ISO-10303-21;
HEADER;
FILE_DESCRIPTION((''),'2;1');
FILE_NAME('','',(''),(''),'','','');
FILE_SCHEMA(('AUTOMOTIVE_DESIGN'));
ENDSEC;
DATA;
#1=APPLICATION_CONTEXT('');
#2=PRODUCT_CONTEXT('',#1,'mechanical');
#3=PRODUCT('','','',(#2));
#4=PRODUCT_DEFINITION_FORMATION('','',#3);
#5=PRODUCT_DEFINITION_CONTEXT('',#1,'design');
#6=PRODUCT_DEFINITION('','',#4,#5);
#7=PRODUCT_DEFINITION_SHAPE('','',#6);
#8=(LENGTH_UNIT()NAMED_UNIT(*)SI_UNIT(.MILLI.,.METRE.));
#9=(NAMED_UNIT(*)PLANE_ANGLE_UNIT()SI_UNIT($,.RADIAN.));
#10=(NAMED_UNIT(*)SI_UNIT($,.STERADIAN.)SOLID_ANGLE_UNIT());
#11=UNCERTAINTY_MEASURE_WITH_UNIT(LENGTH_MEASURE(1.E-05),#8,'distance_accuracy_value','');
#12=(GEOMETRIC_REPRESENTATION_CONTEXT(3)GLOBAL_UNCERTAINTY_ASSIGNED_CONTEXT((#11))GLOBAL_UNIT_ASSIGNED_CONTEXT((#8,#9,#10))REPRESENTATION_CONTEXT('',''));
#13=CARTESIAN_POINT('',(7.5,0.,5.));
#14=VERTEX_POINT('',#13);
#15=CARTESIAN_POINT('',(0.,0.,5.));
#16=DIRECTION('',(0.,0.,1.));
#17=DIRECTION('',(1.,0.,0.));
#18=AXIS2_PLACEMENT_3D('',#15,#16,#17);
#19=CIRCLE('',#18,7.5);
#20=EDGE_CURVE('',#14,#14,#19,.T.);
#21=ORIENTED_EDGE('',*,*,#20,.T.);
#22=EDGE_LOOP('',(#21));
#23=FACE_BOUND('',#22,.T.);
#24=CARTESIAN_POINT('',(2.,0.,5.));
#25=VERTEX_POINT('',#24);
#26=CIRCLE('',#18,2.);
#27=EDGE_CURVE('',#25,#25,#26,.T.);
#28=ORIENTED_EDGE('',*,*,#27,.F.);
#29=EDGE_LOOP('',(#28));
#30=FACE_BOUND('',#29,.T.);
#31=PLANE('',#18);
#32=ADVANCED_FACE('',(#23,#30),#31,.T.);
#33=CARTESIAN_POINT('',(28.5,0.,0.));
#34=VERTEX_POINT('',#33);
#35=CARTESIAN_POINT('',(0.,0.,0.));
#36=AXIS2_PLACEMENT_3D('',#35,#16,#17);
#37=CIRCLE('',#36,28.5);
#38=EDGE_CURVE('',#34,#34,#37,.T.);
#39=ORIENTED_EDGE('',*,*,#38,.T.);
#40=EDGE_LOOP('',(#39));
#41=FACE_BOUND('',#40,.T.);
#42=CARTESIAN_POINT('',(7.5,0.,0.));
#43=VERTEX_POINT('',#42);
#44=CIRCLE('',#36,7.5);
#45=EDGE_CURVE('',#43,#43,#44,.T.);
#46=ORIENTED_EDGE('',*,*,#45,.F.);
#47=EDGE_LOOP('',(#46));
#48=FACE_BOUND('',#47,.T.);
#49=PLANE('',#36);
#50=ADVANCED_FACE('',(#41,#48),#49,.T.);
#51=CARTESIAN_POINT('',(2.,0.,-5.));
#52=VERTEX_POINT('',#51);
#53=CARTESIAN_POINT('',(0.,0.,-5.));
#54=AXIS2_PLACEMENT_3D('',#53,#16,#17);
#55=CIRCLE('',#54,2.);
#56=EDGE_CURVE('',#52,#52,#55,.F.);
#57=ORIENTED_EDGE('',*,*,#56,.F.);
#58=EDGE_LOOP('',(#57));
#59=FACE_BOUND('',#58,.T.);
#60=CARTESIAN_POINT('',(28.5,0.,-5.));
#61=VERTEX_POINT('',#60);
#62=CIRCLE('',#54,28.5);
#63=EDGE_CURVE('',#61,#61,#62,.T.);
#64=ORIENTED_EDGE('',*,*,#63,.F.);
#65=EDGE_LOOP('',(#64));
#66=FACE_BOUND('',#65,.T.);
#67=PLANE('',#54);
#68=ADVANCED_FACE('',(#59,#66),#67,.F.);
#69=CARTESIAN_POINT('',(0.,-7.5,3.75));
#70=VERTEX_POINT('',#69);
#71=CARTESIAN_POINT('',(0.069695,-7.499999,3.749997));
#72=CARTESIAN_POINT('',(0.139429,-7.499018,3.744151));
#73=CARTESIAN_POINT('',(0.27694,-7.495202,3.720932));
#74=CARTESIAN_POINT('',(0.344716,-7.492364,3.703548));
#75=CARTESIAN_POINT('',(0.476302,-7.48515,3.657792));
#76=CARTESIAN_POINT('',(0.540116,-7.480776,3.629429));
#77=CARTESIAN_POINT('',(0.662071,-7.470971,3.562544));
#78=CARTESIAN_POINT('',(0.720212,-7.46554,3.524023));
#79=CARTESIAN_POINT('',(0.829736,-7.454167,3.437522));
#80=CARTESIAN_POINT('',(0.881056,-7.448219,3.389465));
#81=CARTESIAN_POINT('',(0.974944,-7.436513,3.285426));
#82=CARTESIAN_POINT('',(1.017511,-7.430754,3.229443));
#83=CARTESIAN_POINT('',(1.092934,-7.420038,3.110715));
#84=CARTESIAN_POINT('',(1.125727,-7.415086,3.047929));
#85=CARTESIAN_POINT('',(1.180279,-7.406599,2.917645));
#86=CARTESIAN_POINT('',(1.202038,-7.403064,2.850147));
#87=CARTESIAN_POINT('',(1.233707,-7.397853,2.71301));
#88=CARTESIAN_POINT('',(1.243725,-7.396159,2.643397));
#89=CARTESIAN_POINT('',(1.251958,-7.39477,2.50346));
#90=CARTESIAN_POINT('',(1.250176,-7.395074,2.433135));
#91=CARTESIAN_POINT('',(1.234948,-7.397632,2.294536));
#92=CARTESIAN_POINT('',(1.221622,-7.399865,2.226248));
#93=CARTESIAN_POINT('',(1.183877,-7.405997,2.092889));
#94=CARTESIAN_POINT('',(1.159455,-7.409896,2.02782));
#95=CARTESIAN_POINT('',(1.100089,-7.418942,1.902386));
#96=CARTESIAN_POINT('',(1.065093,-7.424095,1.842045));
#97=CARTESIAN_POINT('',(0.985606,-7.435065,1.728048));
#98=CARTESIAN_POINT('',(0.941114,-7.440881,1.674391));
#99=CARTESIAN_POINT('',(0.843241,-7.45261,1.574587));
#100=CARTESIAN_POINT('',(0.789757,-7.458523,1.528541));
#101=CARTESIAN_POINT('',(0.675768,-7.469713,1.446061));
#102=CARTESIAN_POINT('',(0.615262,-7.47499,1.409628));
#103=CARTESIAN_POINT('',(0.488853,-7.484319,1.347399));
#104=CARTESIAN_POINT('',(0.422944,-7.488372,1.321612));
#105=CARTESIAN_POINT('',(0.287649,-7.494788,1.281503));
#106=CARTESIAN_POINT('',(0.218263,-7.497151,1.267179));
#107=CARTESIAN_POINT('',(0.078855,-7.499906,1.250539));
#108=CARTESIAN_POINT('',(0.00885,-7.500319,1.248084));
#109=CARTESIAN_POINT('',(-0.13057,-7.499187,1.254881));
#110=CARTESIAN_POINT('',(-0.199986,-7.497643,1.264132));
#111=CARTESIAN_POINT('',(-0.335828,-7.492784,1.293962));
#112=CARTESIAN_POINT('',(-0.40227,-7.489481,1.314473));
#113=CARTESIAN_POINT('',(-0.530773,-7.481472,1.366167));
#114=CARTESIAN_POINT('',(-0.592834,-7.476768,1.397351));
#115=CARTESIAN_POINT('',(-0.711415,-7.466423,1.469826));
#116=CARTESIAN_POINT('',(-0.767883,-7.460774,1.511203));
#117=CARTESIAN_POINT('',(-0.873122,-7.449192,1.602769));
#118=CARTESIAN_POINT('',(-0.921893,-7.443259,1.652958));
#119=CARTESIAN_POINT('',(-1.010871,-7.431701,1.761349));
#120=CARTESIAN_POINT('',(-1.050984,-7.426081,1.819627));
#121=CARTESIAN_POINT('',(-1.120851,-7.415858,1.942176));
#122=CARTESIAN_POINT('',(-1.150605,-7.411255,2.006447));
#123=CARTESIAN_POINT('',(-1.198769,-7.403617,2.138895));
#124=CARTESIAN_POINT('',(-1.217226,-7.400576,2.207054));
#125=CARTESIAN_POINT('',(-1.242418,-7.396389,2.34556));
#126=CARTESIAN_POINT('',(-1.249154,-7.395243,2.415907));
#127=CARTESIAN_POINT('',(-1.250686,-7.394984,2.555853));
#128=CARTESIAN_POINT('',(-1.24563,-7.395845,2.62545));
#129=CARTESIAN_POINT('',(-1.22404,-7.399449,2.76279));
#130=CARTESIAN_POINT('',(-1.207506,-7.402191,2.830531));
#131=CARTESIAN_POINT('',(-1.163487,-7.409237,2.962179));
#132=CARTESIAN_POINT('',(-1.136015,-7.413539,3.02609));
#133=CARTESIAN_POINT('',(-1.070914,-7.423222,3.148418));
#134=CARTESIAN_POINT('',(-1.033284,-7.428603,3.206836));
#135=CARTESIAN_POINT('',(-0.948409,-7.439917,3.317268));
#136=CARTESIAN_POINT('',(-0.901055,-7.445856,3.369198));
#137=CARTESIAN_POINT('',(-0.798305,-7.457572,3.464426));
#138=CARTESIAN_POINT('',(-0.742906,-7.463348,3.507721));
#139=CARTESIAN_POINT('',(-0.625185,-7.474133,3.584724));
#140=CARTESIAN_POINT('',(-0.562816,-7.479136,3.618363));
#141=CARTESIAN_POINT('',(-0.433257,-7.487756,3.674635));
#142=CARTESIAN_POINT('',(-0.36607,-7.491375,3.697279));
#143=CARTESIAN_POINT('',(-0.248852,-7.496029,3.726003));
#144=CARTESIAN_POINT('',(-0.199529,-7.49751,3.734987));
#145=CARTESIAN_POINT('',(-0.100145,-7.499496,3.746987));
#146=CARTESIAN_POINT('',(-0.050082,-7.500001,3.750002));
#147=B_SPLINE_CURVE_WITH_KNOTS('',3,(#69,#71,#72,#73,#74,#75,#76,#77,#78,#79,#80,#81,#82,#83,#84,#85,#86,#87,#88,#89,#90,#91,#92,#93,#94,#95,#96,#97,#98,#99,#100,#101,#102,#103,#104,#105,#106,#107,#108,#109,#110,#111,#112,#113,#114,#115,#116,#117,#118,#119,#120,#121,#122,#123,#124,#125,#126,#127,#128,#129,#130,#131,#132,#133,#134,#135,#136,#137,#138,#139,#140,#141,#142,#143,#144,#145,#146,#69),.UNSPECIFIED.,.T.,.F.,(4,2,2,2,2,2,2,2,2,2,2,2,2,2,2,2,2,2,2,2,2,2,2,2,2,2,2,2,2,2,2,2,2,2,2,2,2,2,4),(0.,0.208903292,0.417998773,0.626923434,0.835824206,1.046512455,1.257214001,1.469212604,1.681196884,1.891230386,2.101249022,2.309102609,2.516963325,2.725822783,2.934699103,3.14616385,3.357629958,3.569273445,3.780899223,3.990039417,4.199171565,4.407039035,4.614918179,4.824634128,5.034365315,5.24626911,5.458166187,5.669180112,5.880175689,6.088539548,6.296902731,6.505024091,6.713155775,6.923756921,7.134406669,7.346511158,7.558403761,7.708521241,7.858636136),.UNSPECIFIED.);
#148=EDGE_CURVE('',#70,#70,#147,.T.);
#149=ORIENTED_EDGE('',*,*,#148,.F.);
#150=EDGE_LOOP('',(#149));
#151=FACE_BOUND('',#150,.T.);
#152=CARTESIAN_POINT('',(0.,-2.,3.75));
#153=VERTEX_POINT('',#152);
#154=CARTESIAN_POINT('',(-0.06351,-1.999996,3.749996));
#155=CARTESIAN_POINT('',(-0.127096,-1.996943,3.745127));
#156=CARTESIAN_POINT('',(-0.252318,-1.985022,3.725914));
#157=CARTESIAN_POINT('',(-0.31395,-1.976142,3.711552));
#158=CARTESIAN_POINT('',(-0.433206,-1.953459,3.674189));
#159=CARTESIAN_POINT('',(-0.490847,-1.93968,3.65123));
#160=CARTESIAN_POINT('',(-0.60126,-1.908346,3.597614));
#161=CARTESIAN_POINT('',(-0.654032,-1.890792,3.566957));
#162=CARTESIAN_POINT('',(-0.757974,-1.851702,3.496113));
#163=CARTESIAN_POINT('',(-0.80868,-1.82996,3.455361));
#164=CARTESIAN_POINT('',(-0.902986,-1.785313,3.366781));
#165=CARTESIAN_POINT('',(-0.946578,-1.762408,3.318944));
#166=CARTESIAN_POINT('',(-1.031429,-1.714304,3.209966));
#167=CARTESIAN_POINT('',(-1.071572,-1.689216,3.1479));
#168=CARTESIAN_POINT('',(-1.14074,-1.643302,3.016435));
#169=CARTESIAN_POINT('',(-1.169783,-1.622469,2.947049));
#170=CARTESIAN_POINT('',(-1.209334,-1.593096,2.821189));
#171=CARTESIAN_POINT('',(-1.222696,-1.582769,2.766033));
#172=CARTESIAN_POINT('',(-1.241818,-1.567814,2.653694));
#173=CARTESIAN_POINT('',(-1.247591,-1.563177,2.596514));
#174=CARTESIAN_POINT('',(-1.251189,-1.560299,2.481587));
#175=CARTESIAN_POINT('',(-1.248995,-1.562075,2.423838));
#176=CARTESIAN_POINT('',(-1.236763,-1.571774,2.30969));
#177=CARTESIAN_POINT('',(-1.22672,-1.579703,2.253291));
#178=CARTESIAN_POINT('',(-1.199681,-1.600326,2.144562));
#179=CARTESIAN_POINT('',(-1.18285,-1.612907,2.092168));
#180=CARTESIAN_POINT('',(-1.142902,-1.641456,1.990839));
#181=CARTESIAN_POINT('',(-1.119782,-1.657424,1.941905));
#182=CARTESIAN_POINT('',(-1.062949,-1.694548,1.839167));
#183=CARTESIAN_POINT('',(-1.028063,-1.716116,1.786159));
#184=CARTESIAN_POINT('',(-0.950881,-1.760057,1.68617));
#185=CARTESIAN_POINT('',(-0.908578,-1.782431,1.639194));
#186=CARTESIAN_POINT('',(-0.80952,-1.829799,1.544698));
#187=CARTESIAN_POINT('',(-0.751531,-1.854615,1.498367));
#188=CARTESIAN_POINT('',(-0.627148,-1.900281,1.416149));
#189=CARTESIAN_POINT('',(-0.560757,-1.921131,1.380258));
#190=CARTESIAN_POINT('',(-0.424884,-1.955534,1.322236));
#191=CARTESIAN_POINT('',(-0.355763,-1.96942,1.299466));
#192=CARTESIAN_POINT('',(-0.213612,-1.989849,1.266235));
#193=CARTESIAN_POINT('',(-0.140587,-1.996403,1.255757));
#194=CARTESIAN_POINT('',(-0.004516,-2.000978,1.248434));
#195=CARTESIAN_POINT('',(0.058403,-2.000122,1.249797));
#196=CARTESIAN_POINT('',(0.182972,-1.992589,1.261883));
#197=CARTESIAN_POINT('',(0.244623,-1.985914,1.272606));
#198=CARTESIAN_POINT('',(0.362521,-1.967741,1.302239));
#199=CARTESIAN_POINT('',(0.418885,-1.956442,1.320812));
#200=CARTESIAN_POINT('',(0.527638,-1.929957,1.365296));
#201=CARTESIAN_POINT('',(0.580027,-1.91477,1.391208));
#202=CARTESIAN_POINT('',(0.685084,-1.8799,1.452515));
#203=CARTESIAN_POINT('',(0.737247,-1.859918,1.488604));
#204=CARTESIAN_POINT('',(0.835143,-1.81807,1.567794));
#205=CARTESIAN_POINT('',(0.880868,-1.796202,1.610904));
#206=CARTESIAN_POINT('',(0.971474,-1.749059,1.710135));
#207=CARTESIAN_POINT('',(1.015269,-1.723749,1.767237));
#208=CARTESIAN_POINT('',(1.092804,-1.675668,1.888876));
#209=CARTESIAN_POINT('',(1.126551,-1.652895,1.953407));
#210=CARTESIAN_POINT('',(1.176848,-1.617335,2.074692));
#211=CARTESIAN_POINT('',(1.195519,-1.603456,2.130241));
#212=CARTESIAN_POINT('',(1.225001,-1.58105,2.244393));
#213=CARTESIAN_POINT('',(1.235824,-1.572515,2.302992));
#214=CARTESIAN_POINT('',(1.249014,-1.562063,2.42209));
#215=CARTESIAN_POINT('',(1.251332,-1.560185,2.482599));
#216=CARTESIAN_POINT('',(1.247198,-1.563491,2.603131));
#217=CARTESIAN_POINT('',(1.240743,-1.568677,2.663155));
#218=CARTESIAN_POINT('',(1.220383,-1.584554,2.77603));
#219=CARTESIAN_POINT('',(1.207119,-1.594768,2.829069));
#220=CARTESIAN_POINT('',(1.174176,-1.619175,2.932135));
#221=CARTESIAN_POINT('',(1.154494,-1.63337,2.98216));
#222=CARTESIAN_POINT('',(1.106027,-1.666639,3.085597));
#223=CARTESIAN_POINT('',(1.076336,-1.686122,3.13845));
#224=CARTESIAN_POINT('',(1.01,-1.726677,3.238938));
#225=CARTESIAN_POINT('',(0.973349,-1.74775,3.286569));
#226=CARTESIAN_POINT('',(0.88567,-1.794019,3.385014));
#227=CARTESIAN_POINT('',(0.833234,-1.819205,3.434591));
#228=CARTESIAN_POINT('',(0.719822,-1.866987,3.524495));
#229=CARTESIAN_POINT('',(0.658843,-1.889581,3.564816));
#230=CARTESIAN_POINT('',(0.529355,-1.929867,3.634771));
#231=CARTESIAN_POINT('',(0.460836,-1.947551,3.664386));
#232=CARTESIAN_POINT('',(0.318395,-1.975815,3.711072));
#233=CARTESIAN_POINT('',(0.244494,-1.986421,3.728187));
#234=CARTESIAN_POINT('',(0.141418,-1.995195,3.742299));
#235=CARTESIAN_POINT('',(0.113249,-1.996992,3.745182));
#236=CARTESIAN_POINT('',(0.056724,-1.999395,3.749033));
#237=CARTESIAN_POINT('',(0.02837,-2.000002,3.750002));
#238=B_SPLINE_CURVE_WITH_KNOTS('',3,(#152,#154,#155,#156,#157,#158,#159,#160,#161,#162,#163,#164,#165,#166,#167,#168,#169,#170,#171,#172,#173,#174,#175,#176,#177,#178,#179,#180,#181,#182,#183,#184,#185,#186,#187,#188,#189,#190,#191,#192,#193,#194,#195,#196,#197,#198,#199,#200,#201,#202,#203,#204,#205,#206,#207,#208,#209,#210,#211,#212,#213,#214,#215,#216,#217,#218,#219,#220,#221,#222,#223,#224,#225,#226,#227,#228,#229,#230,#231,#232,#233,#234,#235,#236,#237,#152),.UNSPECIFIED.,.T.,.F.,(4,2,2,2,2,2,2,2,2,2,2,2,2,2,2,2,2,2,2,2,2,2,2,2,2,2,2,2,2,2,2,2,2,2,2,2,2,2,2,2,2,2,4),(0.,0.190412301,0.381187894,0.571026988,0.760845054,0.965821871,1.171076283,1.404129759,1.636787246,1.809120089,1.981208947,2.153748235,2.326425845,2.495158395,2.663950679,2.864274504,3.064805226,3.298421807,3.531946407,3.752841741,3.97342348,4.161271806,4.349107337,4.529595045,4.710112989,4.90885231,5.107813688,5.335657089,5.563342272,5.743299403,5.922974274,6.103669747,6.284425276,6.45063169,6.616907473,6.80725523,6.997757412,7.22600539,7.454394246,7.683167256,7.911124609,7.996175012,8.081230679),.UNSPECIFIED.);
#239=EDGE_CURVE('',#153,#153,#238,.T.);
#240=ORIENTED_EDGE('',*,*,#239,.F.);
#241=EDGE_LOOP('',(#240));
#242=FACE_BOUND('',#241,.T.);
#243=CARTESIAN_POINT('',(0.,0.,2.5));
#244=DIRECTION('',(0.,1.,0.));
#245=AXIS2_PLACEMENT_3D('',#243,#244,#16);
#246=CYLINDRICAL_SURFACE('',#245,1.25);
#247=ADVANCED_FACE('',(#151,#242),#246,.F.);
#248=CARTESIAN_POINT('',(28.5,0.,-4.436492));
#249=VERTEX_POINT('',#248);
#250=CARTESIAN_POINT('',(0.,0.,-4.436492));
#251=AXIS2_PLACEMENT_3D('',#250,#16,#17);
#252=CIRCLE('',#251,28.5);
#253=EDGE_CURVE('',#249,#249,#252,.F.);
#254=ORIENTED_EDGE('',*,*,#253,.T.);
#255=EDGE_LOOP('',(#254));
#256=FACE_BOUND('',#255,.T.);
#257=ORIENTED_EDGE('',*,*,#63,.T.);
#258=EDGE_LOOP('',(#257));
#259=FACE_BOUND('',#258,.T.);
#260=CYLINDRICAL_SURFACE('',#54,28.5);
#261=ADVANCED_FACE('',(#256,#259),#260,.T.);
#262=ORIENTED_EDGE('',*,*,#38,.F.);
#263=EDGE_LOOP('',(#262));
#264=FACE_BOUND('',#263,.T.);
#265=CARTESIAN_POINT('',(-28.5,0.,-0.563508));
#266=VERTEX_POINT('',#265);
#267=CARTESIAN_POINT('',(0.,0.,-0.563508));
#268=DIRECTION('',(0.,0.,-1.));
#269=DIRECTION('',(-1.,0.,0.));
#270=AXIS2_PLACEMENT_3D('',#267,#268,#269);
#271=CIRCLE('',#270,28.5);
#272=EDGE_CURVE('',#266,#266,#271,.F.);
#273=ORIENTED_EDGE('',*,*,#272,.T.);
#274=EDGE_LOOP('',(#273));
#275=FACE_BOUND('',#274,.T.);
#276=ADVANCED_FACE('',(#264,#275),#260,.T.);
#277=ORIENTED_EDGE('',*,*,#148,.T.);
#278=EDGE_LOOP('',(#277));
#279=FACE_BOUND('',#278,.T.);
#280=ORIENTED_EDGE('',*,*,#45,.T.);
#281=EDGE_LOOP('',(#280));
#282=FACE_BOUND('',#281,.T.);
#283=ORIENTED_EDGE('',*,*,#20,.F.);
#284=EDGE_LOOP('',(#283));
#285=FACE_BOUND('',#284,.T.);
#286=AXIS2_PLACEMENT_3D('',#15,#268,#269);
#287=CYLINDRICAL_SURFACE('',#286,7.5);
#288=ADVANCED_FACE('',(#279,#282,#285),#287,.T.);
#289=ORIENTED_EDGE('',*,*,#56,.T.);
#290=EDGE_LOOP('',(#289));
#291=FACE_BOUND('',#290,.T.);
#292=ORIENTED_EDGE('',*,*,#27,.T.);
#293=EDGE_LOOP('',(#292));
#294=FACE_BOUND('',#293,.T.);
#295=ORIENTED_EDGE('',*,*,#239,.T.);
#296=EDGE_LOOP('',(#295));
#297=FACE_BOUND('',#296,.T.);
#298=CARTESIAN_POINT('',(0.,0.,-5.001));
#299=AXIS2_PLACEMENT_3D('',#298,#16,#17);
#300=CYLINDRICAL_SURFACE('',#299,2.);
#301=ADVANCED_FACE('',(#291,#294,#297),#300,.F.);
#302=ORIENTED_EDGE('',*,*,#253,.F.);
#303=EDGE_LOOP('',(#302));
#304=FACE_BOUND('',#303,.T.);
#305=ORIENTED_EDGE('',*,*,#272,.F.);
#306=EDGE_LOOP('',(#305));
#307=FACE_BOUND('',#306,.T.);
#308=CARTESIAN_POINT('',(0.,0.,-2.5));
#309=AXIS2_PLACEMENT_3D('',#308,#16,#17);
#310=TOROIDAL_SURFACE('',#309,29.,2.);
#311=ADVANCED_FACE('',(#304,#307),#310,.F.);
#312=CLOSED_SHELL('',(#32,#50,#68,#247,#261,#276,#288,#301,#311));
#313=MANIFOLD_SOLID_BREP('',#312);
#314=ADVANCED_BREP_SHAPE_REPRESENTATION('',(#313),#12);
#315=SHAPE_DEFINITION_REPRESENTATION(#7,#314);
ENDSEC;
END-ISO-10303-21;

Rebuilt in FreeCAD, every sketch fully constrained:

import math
import FreeCAD as App
import Part
import Sketcher
Q = App.Units.Quantity

doc = App.newDocument("Part")
params = doc.addObject("Spreadsheet::Sheet", "Params")
for row, (alias, value) in enumerate([
    ("sketch1_diameter", "57 mm"),
    ("pad1_length", "5 mm"),
    ("sketch2_diameter", "15 mm"),
    ("pad2_length", "5 mm"),
    ("sketch3_diameter", "4 mm"),
    ("sketch4_radius", "2 mm"),
    ("groove_angle", "360 deg"),
    ("sketch5_width", "28.5 mm"),
    ("sketch5_height", "1.25 mm"),
    ("groove2_angle", "360 deg"),
], start=1):
    params.set(f"A{row}", alias)
    params.set(f"B{row}", "=" + value)
    params.setAlias(f"B{row}", alias)

body = doc.addObject("PartDesign::Body", "Body")

# Sketch on XY plane
sketch1 = doc.addObject("Sketcher::SketchObject", "Sketch")
body.addObject(sketch1)
sketch1.AttachmentSupport = (doc.XY_Plane, [""])
sketch1.MapMode = "FlatFace"
sketch1.addGeometry(Part.Circle(App.Vector(0, 0, 0), App.Vector(0, 0, 1), 28), False)
sketch1.addConstraint([
    Sketcher.Constraint("Coincident", 0, 3, -1, 1),
    Sketcher.Constraint("Diameter", 0, Q("57 mm")),
])
sketch1.setExpression("Constraints[1]", "Params.sketch1_diameter")
pad1 = doc.addObject("PartDesign::Pad", "Pad")
body.addObject(pad1)
pad1.Profile = sketch1
pad1.setExpression("Length", "Params.pad1_length")
pad1.Reversed = True

# Sketch on XY plane
sketch2 = doc.addObject("Sketcher::SketchObject", "Sketch001")
body.addObject(sketch2)
sketch2.AttachmentSupport = (doc.XY_Plane, [""])
sketch2.MapMode = "FlatFace"
sketch2.addGeometry(Part.Circle(App.Vector(0, 0, 0), App.Vector(0, 0, 1), 8), False)
sketch2.addConstraint([
    Sketcher.Constraint("Coincident", 0, 3, -1, 1),
    Sketcher.Constraint("Diameter", 0, Q("15 mm")),
])
sketch2.setExpression("Constraints[1]", "Params.sketch2_diameter")
pad2 = doc.addObject("PartDesign::Pad", "Pad001")
body.addObject(pad2)
pad2.Profile = sketch2
pad2.setExpression("Length", "Params.pad2_length")

# Sketch on XY plane
sketch3 = doc.addObject("Sketcher::SketchObject", "Sketch002")
body.addObject(sketch3)
sketch3.AttachmentSupport = (doc.XY_Plane, [""])
sketch3.MapMode = "FlatFace"
sketch3.AttachmentOffset = App.Placement(App.Vector(0, 0, 5), App.Rotation())
sketch3.addGeometry(Part.Circle(App.Vector(0, 0, 0), App.Vector(0, 0, 1), 2), False)
sketch3.addConstraint([
    Sketcher.Constraint("Coincident", 0, 3, -1, 1),
    Sketcher.Constraint("Diameter", 0, Q("4 mm")),
])
sketch3.setExpression("Constraints[1]", "Params.sketch3_diameter")
pocket1 = doc.addObject("PartDesign::Pocket", "Pocket")
body.addObject(pocket1)
pocket1.Profile = sketch3
pocket1.Type = "UpToFirst"

# Sketch on XZ plane
sketch4 = doc.addObject("Sketcher::SketchObject", "Sketch003")
body.addObject(sketch4)
sketch4.AttachmentSupport = (doc.XZ_Plane, [""])
sketch4.MapMode = "FlatFace"
sketch4.addGeometry([
    Part.LineSegment(App.Vector(-29, -4.5, 0), App.Vector(-31.4, -4.5, 0)),
    Part.LineSegment(App.Vector(-31.4, -4.5, 0), App.Vector(-31.4, -0.5, 0)),
    Part.LineSegment(App.Vector(-31.4, -0.5, 0), App.Vector(-29, -0.5, 0)),
    Part.ArcOfCircle(Part.Circle(App.Vector(-29, -2.5, 0), App.Vector(0, 0, 1), 2), math.radians(-90), math.radians(90)),
], False)
sketch4.addConstraint([
    Sketcher.Constraint("Coincident", 0, 2, 1, 1),
    Sketcher.Constraint("Coincident", 1, 2, 2, 1),
    Sketcher.Constraint("Tangent", 2, 2, 3, 2),
    Sketcher.Constraint("Tangent", 3, 1, 0, 1),
    Sketcher.Constraint("Horizontal", 0),
    Sketcher.Constraint("Vertical", 1),
    Sketcher.Constraint("Horizontal", 2),
    Sketcher.Constraint("Radius", 3, Q("2 mm")),
    Sketcher.Constraint("DistanceX", 3, 3, -1, 1, Q("29 mm")),
    Sketcher.Constraint("DistanceY", 3, 3, -1, 1, Q("2.5 mm")),
    Sketcher.Constraint("DistanceX", 0, 2, 0, 1, Q("2.449617 mm")),
])
sketch4.setExpression("Constraints[7]", "Params.sketch4_radius")
groove = doc.addObject("PartDesign::Groove", "Groove")
body.addObject(groove)
groove.Profile = sketch4
groove.ReferenceAxis = (sketch4, ["V_Axis"])
groove.setExpression("Angle", "Params.groove_angle")

# Sketch on YZ plane
sketch5 = doc.addObject("Sketcher::SketchObject", "Sketch004")
body.addObject(sketch5)
sketch5.AttachmentSupport = (doc.YZ_Plane, [""])
sketch5.MapMode = "FlatFace"
sketch5.addGeometry([
    Part.LineSegment(App.Vector(-28.5, 2.5, 0), App.Vector(0, 2.5, 0)),
    Part.LineSegment(App.Vector(0, 2.5, 0), App.Vector(0, 3.8, 0)),
    Part.LineSegment(App.Vector(0, 3.8, 0), App.Vector(-28.5, 3.8, 0)),
    Part.LineSegment(App.Vector(-28.5, 3.8, 0), App.Vector(-28.5, 2.5, 0)),
], False)
sketch5.addGeometry(Part.LineSegment(App.Vector(0, 2.5, 0), App.Vector(-28.5, 2.5, 0)), True)  # axis
sketch5.addConstraint([
    Sketcher.Constraint("Coincident", 0, 2, 1, 1),
    Sketcher.Constraint("Coincident", 1, 2, 2, 1),
    Sketcher.Constraint("Coincident", 2, 2, 3, 1),
    Sketcher.Constraint("Coincident", 3, 2, 0, 1),
    Sketcher.Constraint("Horizontal", 0),
    Sketcher.Constraint("Vertical", 1),
    Sketcher.Constraint("Horizontal", 2),
    Sketcher.Constraint("Vertical", 3),
    Sketcher.Constraint("Horizontal", 4),
    Sketcher.Constraint("Coincident", 4, 1, 0, 2),
    Sketcher.Constraint("PointOnObject", 0, 2, -2),
    Sketcher.Constraint("Vertical", 2, 2, 4, 2),
    Sketcher.Constraint("DistanceX", 0, 1, 0, 2, Q("28.5 mm")),
    Sketcher.Constraint("DistanceY", 1, 1, 1, 2, Q("1.25 mm")),
    Sketcher.Constraint("DistanceY", -1, 1, 0, 2, Q("2.5 mm")),
])
sketch5.setExpression("Constraints[12]", "Params.sketch5_width")
sketch5.setExpression("Constraints[13]", "Params.sketch5_height")
groove2 = doc.addObject("PartDesign::Groove", "Groove001")
body.addObject(groove2)
groove2.Profile = sketch5
groove2.ReferenceAxis = (sketch5, ["Axis0"])
groove2.setExpression("Angle", "Params.groove2_angle")

doc.recompute()
